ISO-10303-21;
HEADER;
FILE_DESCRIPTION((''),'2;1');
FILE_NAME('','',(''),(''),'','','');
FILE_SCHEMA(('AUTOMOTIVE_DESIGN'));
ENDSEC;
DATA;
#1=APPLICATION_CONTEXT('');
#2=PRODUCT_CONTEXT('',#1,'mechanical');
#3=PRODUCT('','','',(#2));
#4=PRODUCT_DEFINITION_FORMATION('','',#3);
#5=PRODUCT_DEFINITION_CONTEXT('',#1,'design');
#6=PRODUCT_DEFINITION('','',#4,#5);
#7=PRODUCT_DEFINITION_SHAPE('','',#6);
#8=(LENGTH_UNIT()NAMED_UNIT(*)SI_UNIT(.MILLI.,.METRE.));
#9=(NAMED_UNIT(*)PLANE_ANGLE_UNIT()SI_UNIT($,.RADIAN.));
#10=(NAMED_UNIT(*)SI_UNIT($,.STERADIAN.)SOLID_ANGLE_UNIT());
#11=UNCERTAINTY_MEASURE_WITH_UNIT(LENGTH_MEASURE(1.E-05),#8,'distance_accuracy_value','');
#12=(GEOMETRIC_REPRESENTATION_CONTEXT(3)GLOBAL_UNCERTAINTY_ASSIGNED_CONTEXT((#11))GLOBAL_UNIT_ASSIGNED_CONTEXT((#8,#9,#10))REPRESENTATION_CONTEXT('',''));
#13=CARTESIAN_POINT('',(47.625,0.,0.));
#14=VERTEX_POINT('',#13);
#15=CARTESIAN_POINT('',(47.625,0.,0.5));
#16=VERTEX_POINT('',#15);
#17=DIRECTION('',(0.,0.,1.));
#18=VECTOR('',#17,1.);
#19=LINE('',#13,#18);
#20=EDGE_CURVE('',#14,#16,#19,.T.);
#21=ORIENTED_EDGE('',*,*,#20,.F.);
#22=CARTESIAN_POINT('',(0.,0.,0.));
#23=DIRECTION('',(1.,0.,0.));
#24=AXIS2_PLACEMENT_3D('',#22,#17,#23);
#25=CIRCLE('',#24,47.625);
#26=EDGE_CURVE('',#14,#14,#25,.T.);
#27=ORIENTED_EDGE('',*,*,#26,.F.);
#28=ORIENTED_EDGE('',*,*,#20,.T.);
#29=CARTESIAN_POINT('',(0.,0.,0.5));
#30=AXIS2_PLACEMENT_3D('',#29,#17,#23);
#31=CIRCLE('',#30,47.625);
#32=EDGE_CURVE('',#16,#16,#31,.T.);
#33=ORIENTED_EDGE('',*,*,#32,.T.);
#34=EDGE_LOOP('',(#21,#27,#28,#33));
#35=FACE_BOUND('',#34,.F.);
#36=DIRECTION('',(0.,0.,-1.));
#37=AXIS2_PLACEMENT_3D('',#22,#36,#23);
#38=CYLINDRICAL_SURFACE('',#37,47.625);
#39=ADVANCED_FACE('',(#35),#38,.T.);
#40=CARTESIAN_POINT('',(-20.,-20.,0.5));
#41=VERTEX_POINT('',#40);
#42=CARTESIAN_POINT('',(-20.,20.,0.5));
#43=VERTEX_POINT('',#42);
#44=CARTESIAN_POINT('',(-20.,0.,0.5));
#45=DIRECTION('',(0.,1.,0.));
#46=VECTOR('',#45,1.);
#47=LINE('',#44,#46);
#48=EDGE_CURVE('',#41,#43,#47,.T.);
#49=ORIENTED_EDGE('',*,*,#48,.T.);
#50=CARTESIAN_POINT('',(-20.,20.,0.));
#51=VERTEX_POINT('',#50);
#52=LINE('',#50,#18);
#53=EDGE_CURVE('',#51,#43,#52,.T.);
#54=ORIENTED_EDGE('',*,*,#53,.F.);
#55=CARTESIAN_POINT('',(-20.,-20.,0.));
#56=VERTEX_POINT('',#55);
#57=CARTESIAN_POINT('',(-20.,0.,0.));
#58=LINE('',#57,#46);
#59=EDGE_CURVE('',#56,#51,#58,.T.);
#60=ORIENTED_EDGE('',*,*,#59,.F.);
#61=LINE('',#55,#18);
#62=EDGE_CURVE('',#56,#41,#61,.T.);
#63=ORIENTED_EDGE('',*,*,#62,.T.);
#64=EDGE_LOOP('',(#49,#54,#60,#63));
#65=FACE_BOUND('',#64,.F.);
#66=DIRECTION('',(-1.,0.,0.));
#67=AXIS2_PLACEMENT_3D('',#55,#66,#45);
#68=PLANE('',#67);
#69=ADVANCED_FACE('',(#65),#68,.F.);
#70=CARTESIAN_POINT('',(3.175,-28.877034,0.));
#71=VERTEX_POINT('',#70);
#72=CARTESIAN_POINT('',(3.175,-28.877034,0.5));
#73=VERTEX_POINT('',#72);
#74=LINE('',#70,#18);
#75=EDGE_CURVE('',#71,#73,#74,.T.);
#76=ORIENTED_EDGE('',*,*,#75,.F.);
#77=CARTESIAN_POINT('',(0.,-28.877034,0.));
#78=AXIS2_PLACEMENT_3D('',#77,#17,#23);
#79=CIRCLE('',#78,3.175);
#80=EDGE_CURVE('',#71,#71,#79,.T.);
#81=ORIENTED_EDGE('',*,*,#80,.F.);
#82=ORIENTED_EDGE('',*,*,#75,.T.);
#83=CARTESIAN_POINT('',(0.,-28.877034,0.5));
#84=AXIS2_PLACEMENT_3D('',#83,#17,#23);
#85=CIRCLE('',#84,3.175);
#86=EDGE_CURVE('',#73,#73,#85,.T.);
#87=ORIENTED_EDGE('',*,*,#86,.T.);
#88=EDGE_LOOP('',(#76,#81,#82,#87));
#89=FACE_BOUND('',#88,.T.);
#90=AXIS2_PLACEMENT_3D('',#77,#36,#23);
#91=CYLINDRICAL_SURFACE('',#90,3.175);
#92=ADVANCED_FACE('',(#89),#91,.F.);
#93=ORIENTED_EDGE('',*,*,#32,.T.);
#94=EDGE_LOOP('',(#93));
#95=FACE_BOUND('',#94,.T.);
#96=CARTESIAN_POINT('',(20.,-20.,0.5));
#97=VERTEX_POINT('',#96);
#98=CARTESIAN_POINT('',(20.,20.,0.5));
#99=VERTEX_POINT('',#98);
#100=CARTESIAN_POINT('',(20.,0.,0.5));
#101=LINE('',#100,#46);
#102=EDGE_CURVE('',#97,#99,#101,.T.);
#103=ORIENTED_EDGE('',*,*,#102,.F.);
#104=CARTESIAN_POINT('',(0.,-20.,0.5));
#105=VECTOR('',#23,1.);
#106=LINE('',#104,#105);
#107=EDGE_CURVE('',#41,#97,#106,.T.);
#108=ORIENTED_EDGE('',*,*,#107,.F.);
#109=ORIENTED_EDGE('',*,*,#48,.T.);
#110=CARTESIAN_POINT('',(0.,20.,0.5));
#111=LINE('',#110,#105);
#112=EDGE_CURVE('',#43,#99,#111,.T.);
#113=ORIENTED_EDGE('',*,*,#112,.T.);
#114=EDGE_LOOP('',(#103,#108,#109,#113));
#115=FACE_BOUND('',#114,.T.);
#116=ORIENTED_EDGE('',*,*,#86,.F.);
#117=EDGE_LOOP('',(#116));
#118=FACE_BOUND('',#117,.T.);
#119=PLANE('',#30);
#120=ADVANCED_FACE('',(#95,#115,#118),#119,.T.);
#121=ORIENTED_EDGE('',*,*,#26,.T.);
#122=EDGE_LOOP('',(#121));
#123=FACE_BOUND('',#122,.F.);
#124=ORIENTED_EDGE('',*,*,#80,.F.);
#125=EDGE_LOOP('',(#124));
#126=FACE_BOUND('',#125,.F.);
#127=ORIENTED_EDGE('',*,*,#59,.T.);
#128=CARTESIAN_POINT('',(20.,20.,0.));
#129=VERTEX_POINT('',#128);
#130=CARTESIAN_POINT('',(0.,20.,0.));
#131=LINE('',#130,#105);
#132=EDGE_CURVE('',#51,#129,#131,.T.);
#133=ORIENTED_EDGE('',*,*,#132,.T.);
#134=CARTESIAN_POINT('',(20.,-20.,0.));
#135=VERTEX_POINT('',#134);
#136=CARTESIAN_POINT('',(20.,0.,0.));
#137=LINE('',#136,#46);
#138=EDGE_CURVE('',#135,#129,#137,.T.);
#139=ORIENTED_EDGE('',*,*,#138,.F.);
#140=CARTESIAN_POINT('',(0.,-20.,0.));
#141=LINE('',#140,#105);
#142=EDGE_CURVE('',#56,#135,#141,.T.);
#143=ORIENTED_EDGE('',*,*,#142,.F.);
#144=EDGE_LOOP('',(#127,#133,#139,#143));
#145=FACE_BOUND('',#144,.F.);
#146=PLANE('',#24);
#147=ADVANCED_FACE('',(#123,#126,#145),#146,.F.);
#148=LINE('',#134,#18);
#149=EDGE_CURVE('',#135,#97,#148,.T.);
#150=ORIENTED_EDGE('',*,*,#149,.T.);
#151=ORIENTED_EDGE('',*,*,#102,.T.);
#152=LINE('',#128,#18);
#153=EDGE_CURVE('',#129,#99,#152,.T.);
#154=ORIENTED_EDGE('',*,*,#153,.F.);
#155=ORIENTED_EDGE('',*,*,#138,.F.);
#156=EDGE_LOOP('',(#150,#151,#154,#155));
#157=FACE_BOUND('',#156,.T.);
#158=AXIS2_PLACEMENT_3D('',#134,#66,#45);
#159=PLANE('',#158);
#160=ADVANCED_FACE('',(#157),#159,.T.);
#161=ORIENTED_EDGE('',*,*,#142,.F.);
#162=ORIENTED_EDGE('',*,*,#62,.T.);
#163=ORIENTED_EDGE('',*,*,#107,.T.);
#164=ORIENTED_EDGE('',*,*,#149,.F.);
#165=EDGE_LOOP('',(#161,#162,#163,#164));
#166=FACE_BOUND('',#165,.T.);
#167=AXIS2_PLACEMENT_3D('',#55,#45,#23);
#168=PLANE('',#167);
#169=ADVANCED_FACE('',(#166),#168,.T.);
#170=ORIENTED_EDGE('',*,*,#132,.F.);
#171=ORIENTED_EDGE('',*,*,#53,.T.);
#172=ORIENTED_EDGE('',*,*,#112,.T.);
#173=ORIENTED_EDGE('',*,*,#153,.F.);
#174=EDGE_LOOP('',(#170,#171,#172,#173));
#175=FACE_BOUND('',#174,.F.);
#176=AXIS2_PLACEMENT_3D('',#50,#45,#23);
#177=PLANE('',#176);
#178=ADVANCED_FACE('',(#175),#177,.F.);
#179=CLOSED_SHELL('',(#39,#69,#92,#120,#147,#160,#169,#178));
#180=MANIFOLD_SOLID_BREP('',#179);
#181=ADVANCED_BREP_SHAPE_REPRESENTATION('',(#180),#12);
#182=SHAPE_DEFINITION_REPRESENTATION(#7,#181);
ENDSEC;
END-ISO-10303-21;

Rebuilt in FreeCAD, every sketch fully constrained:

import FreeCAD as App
import Part
import Sketcher

V = App.Vector

doc = App.newDocument("Part")
body = doc.addObject("PartDesign::Body", "Body")

sketch1 = body.newObject("Sketcher::SketchObject", "Sketch")
sketch1.AttachmentSupport = (doc.getObject("XY_Plane"), [""])
sketch1.MapMode = "FlatFace"
sketch1.addGeometry(Part.Circle(V(0, 0, 0), V(0, 0, 1), 47.6), False)
sketch1.addGeometry(Part.Circle(V(0, -28.9, 0), V(0, 0, 1), 3.2), False)
sketch1.addGeometry(Part.LineSegment(V(20, -20, 0), V(-20, -20, 0)), False)
sketch1.addGeometry(Part.LineSegment(V(-20, -20, 0), V(-20, 20, 0)), False)
sketch1.addGeometry(Part.LineSegment(V(-20, 20, 0), V(20, 20, 0)), False)
sketch1.addGeometry(Part.LineSegment(V(20, 20, 0), V(20, -20, 0)), False)
sketch1.addConstraint(Sketcher.Constraint("Coincident", 2, 2, 3, 1))
sketch1.addConstraint(Sketcher.Constraint("Coincident", 3, 2, 4, 1))
sketch1.addConstraint(Sketcher.Constraint("Coincident", 4, 2, 5, 1))
sketch1.addConstraint(Sketcher.Constraint("Coincident", 5, 2, 2, 1))
sketch1.addConstraint(Sketcher.Constraint("Horizontal", 2))
sketch1.addConstraint(Sketcher.Constraint("Vertical", 3))
sketch1.addConstraint(Sketcher.Constraint("Horizontal", 4))
sketch1.addConstraint(Sketcher.Constraint("Vertical", 5))
sketch1.addConstraint(Sketcher.Constraint("Coincident", 0, 3, -1, 1))
sketch1.addConstraint(Sketcher.Constraint("Symmetric", 2, 2, 4, 2, -1, 1))
sketch1.addConstraint(Sketcher.Constraint("PointOnObject", 1, 3, -2))
sketch1.addConstraint(Sketcher.Constraint("Equal", 4, 3))
sketch1.addConstraint(Sketcher.Constraint("Diameter", 0, 95.25))
sketch1.addConstraint(Sketcher.Constraint("Diameter", 1, 6.35))
sketch1.addConstraint(Sketcher.Constraint("DistanceX", 2, 2, 2, 1, 40.0))
sketch1.addConstraint(Sketcher.Constraint("DistanceY", 1, 3, -1, 1, 28.877034))
pad1 = body.newObject("PartDesign::Pad", "Pad")
pad1.Profile = sketch1
pad1.Length = 0.5

doc.recompute()
